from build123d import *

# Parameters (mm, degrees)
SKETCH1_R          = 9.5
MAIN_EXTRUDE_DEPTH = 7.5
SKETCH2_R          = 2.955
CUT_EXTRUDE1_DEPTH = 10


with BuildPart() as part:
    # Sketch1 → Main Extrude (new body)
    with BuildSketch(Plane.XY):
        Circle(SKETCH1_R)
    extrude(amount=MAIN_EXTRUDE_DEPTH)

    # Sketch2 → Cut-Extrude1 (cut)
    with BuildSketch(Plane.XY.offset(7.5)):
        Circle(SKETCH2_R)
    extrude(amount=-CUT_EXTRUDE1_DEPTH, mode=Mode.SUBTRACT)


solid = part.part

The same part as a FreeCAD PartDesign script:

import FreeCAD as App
import Part
import Sketcher
Q = App.Units.Quantity

doc = App.newDocument("Part")
body = doc.addObject("PartDesign::Body", "Body")

# Sketch on XY plane
sketch1 = body.newObject("Sketcher::SketchObject", "Sketch")
sketch1.AttachmentSupport = (doc.getObject("XY_Plane"), [""])
sketch1.MapMode = "FlatFace"
sketch1.addGeometry(Part.Circle(App.Vector(0, 0, 0), App.Vector(0, 0, 1), 9.5), False)
sketch1.addConstraint([
    Sketcher.Constraint("Coincident", 0, 3, -1, 1),
    Sketcher.Constraint("Diameter", 0, Q("19 mm")),
])
pad1 = body.newObject("PartDesign::Pad", "Pad")
pad1.Profile = sketch1
pad1.Length = 7.5

# Sketch on XY plane
sketch2 = body.newObject("Sketcher::SketchObject", "Sketch001")
sketch2.AttachmentSupport = (doc.getObject("XY_Plane"), [""])
sketch2.MapMode = "FlatFace"
sketch2.AttachmentOffset = App.Placement(App.Vector(0, 0, 7.5), App.Rotation())
sketch2.addGeometry(Part.Circle(App.Vector(0, 0, 0), App.Vector(0, 0, 1), 2.955), False)
sketch2.addConstraint([
    Sketcher.Constraint("Coincident", 0, 3, -1, 1),
    Sketcher.Constraint("Diameter", 0, Q("5.91 mm")),
])
pocket1 = body.newObject("PartDesign::Pocket", "Pocket")
pocket1.Profile = sketch2
pocket1.Length = 10

doc.recompute()
